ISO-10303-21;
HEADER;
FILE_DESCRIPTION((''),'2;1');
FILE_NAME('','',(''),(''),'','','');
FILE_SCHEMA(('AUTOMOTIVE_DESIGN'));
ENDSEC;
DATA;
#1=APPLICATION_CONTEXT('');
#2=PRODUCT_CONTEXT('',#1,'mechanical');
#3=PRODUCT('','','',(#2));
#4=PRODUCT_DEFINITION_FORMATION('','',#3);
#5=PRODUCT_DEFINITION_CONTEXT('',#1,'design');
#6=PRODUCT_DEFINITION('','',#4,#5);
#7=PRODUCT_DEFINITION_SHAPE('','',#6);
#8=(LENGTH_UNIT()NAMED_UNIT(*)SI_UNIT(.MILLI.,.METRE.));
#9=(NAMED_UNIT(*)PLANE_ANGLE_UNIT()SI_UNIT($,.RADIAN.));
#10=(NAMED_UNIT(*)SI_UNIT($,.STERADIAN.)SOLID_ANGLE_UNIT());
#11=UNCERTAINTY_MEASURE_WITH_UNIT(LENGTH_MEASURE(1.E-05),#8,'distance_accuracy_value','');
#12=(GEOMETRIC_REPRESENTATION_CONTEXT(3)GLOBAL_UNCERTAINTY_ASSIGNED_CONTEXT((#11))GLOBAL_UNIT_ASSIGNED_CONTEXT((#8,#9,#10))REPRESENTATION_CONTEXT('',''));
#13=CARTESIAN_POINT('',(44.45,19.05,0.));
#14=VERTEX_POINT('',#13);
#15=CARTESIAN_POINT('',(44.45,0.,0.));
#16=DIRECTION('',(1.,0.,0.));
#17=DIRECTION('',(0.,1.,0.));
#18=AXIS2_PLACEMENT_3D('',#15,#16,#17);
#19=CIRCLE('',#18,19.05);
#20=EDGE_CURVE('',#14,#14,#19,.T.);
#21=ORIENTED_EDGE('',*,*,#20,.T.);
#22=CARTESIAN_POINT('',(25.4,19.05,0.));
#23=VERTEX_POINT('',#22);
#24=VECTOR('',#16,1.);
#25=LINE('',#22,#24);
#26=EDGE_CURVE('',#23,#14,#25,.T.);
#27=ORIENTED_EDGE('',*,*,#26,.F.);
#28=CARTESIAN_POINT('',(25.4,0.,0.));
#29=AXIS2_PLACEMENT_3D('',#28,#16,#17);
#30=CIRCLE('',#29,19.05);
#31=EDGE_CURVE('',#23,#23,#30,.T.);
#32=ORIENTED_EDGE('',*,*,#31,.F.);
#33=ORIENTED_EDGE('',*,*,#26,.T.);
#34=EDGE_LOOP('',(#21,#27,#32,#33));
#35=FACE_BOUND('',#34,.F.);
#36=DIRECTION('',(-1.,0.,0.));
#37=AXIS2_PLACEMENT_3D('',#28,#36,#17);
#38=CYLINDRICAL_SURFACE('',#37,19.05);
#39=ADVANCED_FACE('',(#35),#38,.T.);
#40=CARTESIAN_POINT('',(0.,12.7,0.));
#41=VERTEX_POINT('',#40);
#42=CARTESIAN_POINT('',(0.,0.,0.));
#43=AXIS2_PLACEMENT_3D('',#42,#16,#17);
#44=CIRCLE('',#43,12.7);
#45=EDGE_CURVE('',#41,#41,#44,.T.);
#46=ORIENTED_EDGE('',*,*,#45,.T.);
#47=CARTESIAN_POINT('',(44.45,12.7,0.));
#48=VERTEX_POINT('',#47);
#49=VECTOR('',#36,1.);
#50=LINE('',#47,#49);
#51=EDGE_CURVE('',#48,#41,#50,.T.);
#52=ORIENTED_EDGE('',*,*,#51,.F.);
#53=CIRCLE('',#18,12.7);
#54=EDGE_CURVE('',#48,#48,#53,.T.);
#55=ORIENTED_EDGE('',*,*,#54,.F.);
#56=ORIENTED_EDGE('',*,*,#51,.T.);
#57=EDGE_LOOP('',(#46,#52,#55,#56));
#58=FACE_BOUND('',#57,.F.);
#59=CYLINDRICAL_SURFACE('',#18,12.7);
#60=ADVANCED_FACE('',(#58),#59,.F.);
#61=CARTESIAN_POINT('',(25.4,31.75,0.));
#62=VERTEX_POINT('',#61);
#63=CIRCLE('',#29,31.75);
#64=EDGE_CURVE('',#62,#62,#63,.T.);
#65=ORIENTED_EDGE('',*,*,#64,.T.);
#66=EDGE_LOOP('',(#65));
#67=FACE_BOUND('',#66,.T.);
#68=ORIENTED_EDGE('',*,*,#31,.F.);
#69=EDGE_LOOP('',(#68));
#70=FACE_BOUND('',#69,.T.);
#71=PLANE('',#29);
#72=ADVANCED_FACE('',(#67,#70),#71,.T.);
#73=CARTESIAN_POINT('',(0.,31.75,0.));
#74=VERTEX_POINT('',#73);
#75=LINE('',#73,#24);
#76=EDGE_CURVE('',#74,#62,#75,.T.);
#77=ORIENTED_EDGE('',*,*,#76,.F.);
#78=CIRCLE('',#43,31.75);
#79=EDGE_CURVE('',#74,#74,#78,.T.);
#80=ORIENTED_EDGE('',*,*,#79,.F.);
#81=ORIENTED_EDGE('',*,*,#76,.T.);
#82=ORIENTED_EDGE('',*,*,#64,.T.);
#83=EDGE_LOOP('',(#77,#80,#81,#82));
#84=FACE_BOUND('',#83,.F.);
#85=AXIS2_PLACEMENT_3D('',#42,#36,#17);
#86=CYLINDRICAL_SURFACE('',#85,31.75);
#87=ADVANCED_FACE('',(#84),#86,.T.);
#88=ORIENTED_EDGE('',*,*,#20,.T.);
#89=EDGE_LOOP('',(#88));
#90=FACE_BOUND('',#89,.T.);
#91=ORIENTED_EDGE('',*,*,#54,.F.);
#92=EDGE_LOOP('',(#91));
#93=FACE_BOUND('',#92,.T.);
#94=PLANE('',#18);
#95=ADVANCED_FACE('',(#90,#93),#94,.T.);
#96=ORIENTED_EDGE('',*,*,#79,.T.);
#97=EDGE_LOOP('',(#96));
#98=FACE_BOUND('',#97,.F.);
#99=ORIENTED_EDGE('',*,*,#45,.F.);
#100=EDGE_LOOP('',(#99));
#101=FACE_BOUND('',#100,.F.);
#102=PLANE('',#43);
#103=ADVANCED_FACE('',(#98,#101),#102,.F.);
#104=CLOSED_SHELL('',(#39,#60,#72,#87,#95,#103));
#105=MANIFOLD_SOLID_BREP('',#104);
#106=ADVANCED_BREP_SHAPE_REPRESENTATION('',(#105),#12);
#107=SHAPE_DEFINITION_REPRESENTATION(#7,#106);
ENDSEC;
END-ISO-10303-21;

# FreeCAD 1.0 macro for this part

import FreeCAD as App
import Part
import Sketcher
from FreeCAD import Vector
Q = App.Units.Quantity

doc = App.newDocument("Part")
body = doc.addObject("PartDesign::Body", "Body")

sketch1 = body.newObject("Sketcher::SketchObject", "Sketch")
sketch1.AttachmentSupport = (doc.getObject("YZ_Plane"), [""])
sketch1.MapMode = "FlatFace"
sketch1.addGeometry(Part.Circle(Vector(0, 0, 0), Vector(0, 0, 1), 32), False)
sketch1.addConstraint([
    Sketcher.Constraint("Coincident", 0, 3, -1, 1),
    Sketcher.Constraint("Diameter", 0, Q("2.5 in")),
])
pad1 = body.newObject("PartDesign::Pad", "Pad")
pad1.Profile = sketch1
pad1.Length = Q("1 in")

sketch2 = body.newObject("Sketcher::SketchObject", "Sketch001")
sketch2.AttachmentSupport = (doc.getObject("YZ_Plane"), [""])
sketch2.MapMode = "FlatFace"
sketch2.AttachmentOffset = App.Placement(Vector(0, 0, 1 * 25.4), App.Rotation())
sketch2.addGeometry(Part.Circle(Vector(0, 0, 0), Vector(0, 0, 1), 19), False)
sketch2.addConstraint([
    Sketcher.Constraint("Coincident", 0, 3, -1, 1),
    Sketcher.Constraint("Diameter", 0, Q("1.5 in")),
])
pad2 = body.newObject("PartDesign::Pad", "Pad001")
pad2.Profile = sketch2
pad2.Length = Q("0.75 in")

sketch3 = body.newObject("Sketcher::SketchObject", "Sketch002")
sketch3.AttachmentSupport = (doc.getObject("YZ_Plane"), [""])
sketch3.MapMode = "FlatFace"
sketch3.AttachmentOffset = App.Placement(Vector(0, 0, 1.75 * 25.4), App.Rotation())
sketch3.addGeometry(Part.Circle(Vector(0, 0, 0), Vector(0, 0, 1), 13), False)
sketch3.addConstraint([
    Sketcher.Constraint("Coincident", 0, 3, -1, 1),
    Sketcher.Constraint("Diameter", 0, Q("1 in")),
])
pocket1 = body.newObject("PartDesign::Pocket", "Pocket")
pocket1.Profile = sketch3
pocket1.Length = Q("7 in")

doc.recompute()
